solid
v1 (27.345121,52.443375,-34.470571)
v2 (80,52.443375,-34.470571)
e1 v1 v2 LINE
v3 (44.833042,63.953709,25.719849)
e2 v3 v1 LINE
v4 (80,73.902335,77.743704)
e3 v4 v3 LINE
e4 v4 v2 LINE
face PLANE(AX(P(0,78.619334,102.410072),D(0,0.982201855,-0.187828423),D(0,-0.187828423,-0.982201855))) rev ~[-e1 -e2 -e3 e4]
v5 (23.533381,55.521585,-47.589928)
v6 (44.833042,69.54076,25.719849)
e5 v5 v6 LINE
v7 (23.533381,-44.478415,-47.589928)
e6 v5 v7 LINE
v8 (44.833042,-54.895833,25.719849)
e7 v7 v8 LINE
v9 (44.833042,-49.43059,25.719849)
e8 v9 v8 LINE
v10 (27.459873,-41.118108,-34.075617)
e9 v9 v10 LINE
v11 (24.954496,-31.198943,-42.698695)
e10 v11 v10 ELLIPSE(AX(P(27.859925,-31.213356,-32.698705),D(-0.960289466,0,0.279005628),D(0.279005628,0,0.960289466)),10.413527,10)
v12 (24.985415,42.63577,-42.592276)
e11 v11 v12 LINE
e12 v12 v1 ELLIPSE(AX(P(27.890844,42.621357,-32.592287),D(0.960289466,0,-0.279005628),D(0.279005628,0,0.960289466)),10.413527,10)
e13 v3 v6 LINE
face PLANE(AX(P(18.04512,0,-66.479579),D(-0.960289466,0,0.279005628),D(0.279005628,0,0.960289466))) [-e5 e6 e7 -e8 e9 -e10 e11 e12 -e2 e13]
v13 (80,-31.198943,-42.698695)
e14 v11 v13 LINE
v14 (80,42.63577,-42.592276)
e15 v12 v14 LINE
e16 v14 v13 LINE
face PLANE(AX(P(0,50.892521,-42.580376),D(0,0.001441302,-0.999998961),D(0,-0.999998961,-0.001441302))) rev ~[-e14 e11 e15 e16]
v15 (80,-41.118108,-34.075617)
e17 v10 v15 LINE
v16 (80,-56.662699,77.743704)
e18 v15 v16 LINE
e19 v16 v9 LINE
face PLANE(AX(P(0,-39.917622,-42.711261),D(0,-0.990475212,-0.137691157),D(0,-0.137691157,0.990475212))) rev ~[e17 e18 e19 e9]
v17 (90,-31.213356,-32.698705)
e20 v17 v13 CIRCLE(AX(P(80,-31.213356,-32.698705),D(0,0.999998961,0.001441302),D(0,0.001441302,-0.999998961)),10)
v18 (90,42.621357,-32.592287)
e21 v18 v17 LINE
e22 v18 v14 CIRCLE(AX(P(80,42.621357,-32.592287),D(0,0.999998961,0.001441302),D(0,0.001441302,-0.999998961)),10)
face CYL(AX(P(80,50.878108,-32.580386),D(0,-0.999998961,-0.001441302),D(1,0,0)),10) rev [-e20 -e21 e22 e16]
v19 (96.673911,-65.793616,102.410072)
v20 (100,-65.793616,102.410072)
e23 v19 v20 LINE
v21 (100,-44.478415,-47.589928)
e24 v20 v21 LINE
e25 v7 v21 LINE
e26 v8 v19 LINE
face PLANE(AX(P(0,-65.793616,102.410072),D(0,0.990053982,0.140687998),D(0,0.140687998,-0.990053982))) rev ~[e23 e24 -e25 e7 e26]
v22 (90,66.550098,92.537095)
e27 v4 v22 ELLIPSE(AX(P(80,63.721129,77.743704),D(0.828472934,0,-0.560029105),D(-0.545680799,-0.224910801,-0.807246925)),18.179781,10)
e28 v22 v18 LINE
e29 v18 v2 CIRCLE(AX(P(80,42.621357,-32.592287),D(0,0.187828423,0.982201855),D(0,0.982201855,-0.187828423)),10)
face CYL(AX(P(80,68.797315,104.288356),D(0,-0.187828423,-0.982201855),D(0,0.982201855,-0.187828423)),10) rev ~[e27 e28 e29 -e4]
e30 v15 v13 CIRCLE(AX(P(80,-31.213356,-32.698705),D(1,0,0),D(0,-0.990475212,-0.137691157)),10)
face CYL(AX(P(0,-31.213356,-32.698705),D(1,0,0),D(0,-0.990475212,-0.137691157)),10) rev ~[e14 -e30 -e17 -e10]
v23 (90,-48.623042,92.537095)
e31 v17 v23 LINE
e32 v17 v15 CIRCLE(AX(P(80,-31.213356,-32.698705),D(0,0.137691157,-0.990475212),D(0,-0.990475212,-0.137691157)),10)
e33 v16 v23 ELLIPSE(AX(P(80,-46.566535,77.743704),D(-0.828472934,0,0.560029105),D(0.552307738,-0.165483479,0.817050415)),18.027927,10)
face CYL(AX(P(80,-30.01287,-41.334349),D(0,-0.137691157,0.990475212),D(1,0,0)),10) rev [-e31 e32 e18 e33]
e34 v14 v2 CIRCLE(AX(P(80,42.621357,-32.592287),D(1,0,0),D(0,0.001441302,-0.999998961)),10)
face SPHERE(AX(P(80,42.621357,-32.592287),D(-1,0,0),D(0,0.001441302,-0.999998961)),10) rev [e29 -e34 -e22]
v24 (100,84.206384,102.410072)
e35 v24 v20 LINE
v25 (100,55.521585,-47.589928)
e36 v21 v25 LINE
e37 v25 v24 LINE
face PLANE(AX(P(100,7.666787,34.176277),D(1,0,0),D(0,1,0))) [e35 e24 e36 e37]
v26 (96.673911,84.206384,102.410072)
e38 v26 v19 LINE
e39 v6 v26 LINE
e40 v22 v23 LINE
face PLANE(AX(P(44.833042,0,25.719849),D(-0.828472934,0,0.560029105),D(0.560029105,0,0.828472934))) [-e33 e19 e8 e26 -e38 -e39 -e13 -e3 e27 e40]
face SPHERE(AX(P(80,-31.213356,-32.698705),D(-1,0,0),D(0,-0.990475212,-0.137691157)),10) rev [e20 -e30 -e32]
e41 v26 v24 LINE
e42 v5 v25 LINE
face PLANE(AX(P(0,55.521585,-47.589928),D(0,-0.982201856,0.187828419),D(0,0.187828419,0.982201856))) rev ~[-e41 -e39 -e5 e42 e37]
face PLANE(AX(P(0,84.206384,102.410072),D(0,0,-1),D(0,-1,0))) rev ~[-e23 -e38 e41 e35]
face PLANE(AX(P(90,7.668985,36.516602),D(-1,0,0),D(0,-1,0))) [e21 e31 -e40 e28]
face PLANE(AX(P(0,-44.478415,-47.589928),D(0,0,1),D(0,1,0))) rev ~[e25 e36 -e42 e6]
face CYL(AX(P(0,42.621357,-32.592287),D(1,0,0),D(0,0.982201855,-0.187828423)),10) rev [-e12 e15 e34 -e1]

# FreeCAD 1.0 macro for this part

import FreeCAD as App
import Part
import Sketcher

V = App.Vector
Q = App.Units.Quantity


def edges_at(feature, points):
    """Names of the edges that pass closest to the given points."""
    edges = feature.Shape.Edges
    near = lambda p: min(range(len(edges)), key=lambda i: edges[i].distToShape(Part.Vertex(*p))[0])
    return sorted({f"Edge{near(p) + 1}" for p in points})

doc = App.newDocument("Part")
body = doc.addObject("PartDesign::Body", "Body")

sketch1 = doc.addObject("Sketcher::SketchObject", "Sketch")
body.addObject(sketch1)
sketch1.AttachmentSupport = (doc.YZ_Plane, [""])
sketch1.MapMode = "FlatFace"
sketch1.addGeometry([
    Part.LineSegment(V(84, 102, 0), V(-66, 102, 0)),
    Part.LineSegment(V(-66, 102, 0), V(-44, -48, 0)),
    Part.LineSegment(V(-44, -48, 0), V(56, -48, 0)),
    Part.LineSegment(V(56, -48, 0), V(84, 102, 0)),
], False)
sketch1.addConstraint([
    Sketcher.Constraint("Coincident", 0, 2, 1, 1),
    Sketcher.Constraint("Coincident", 1, 2, 2, 1),
    Sketcher.Constraint("Coincident", 2, 2, 3, 1),
    Sketcher.Constraint("Coincident", 3, 2, 0, 1),
    Sketcher.Constraint("Horizontal", 0),
    Sketcher.Constraint("Horizontal", 2),
    Sketcher.Constraint("DistanceX", 0, 2, 0, 1, Q("150 mm")),
    Sketcher.Constraint("DistanceX", 2, 1, 2, 2, Q("100 mm")),
    Sketcher.Constraint("DistanceY", 1, 2, 0, 2, Q("150 mm")),
    Sketcher.Constraint("Distance", 3, Q("152.718099 mm")),
    Sketcher.Constraint("DistanceY", -1, 1, 0, 2, Q("102.410072 mm")),
    Sketcher.Constraint("DistanceX", 0, 2, -1, 1, Q("65.793616 mm")),
])
pad1 = doc.addObject("PartDesign::Pad", "Pad")
body.addObject(pad1)
pad1.Profile = sketch1
pad1.Length = 100

sketch2 = doc.addObject("Sketcher::SketchObject", "Sketch001")
body.addObject(sketch2)
sketch2.AttachmentSupport = (doc.YZ_Plane, [""])
sketch2.MapMode = "FlatFace"
sketch2.addGeometry([
    Part.LineSegment(V(-60, 102, 0), V(79, 102, 0)),
    Part.LineSegment(V(79, 102, 0), V(51, -43, 0)),
    Part.LineSegment(V(51, -43, 0), V(-40, -43, 0)),
    Part.LineSegment(V(-40, -43, 0), V(-60, 102, 0)),
], False)
sketch2.addConstraint([
    Sketcher.Constraint("Coincident", 0, 2, 1, 1),
    Sketcher.Constraint("Coincident", 1, 2, 2, 1),
    Sketcher.Constraint("Coincident", 2, 2, 3, 1),
    Sketcher.Constraint("Coincident", 3, 2, 0, 1),
    Sketcher.Constraint("Horizontal", 0),
    Sketcher.Constraint("DistanceX", 3, 2, -1, 1, Q("60.0917 mm")),
    Sketcher.Constraint("Distance", 1, Q("147.617771 mm")),
    Sketcher.Constraint("DistanceX", 0, 1, 0, 2, Q("138.711034 mm")),
    Sketcher.Constraint("DistanceY", -1, 1, 0, 2, Q("102.410072 mm")),
    Sketcher.Constraint("DistanceX", -1, 1, 1, 2, Q("50.892521 mm")),
    Sketcher.Constraint("DistanceY", 2, 2, -1, 1, Q("42.711261 mm")),
    Sketcher.Constraint("DistanceX", 3, 2, 2, 2, Q("20.174078 mm")),
])
pocket1 = doc.addObject("PartDesign::Pocket", "Pocket")
body.addObject(pocket1)
pocket1.Profile = sketch2
pocket1.Length = 90
pocket1.Reversed = True
doc.recompute()

fillet = doc.addObject("PartDesign::Fillet", "Fillet")
body.addObject(fillet)
fillet.Base = (pocket1, edges_at(pocket1, [
    (45, 50.893, -42.58),
    (90, 5.487, -42.646),
    (45, -39.918, -42.711),
    (90, 64.756, 29.915),
    (90, -50.005, 29.849),
]))
fillet.Radius = 10

sketch3 = doc.addObject("Sketcher::SketchObject", "Sketch002")
body.addObject(sketch3)
sketch3.AttachmentSupport = (doc.XZ_Plane, [""])
sketch3.MapMode = "FlatFace"
sketch3.addGeometry([
    Part.LineSegment(V(-27, -66, 0), V(18, -66, 0)),
    Part.LineSegment(V(18, -66, 0), V(45, 26, 0)),
    Part.LineSegment(V(45, 26, 0), V(101, 109, 0)),
    Part.LineSegment(V(101, 109, 0), V(-27, 106, 0)),
    Part.LineSegment(V(-27, 106, 0), V(-27, -66, 0)),
], False)
sketch3.addConstraint([
    Sketcher.Constraint("Coincident", 0, 2, 1, 1),
    Sketcher.Constraint("Coincident", 1, 2, 2, 1),
    Sketcher.Constraint("Coincident", 2, 2, 3, 1),
    Sketcher.Constraint("Coincident", 3, 2, 4, 1),
    Sketcher.Constraint("Coincident", 4, 2, 0, 1),
    Sketcher.Constraint("Horizontal", 0),
    Sketcher.Constraint("Vertical", 4),
    Sketcher.Constraint("Distance", 1, Q("96.012121 mm")),
    Sketcher.Constraint("Distance", 2, Q("100.807529 mm")),
    Sketcher.Constraint("DistanceX", 0, 1, 0, 2, Q("45.064094 mm")),
    Sketcher.Constraint("DistanceY", 4, 2, 4, 1, Q("172.449716 mm")),
    Sketcher.Constraint("DistanceX", -1, 1, 0, 2, Q("18.04512 mm")),
    Sketcher.Constraint("DistanceY", 0, 2, -1, 1, Q("66.479579 mm")),
    Sketcher.Constraint("DistanceY", -1, 1, 1, 2, Q("25.719849 mm")),
    Sketcher.Constraint("DistanceX", -1, 1, 2, 2, Q("101.288192 mm")),
])
pocket2 = doc.addObject("PartDesign::Pocket", "Pocket001")
body.addObject(pocket2)
pocket2.Profile = sketch3
pocket2.Type = "ThroughAll"
pocket2.Midplane = True

doc.recompute()
